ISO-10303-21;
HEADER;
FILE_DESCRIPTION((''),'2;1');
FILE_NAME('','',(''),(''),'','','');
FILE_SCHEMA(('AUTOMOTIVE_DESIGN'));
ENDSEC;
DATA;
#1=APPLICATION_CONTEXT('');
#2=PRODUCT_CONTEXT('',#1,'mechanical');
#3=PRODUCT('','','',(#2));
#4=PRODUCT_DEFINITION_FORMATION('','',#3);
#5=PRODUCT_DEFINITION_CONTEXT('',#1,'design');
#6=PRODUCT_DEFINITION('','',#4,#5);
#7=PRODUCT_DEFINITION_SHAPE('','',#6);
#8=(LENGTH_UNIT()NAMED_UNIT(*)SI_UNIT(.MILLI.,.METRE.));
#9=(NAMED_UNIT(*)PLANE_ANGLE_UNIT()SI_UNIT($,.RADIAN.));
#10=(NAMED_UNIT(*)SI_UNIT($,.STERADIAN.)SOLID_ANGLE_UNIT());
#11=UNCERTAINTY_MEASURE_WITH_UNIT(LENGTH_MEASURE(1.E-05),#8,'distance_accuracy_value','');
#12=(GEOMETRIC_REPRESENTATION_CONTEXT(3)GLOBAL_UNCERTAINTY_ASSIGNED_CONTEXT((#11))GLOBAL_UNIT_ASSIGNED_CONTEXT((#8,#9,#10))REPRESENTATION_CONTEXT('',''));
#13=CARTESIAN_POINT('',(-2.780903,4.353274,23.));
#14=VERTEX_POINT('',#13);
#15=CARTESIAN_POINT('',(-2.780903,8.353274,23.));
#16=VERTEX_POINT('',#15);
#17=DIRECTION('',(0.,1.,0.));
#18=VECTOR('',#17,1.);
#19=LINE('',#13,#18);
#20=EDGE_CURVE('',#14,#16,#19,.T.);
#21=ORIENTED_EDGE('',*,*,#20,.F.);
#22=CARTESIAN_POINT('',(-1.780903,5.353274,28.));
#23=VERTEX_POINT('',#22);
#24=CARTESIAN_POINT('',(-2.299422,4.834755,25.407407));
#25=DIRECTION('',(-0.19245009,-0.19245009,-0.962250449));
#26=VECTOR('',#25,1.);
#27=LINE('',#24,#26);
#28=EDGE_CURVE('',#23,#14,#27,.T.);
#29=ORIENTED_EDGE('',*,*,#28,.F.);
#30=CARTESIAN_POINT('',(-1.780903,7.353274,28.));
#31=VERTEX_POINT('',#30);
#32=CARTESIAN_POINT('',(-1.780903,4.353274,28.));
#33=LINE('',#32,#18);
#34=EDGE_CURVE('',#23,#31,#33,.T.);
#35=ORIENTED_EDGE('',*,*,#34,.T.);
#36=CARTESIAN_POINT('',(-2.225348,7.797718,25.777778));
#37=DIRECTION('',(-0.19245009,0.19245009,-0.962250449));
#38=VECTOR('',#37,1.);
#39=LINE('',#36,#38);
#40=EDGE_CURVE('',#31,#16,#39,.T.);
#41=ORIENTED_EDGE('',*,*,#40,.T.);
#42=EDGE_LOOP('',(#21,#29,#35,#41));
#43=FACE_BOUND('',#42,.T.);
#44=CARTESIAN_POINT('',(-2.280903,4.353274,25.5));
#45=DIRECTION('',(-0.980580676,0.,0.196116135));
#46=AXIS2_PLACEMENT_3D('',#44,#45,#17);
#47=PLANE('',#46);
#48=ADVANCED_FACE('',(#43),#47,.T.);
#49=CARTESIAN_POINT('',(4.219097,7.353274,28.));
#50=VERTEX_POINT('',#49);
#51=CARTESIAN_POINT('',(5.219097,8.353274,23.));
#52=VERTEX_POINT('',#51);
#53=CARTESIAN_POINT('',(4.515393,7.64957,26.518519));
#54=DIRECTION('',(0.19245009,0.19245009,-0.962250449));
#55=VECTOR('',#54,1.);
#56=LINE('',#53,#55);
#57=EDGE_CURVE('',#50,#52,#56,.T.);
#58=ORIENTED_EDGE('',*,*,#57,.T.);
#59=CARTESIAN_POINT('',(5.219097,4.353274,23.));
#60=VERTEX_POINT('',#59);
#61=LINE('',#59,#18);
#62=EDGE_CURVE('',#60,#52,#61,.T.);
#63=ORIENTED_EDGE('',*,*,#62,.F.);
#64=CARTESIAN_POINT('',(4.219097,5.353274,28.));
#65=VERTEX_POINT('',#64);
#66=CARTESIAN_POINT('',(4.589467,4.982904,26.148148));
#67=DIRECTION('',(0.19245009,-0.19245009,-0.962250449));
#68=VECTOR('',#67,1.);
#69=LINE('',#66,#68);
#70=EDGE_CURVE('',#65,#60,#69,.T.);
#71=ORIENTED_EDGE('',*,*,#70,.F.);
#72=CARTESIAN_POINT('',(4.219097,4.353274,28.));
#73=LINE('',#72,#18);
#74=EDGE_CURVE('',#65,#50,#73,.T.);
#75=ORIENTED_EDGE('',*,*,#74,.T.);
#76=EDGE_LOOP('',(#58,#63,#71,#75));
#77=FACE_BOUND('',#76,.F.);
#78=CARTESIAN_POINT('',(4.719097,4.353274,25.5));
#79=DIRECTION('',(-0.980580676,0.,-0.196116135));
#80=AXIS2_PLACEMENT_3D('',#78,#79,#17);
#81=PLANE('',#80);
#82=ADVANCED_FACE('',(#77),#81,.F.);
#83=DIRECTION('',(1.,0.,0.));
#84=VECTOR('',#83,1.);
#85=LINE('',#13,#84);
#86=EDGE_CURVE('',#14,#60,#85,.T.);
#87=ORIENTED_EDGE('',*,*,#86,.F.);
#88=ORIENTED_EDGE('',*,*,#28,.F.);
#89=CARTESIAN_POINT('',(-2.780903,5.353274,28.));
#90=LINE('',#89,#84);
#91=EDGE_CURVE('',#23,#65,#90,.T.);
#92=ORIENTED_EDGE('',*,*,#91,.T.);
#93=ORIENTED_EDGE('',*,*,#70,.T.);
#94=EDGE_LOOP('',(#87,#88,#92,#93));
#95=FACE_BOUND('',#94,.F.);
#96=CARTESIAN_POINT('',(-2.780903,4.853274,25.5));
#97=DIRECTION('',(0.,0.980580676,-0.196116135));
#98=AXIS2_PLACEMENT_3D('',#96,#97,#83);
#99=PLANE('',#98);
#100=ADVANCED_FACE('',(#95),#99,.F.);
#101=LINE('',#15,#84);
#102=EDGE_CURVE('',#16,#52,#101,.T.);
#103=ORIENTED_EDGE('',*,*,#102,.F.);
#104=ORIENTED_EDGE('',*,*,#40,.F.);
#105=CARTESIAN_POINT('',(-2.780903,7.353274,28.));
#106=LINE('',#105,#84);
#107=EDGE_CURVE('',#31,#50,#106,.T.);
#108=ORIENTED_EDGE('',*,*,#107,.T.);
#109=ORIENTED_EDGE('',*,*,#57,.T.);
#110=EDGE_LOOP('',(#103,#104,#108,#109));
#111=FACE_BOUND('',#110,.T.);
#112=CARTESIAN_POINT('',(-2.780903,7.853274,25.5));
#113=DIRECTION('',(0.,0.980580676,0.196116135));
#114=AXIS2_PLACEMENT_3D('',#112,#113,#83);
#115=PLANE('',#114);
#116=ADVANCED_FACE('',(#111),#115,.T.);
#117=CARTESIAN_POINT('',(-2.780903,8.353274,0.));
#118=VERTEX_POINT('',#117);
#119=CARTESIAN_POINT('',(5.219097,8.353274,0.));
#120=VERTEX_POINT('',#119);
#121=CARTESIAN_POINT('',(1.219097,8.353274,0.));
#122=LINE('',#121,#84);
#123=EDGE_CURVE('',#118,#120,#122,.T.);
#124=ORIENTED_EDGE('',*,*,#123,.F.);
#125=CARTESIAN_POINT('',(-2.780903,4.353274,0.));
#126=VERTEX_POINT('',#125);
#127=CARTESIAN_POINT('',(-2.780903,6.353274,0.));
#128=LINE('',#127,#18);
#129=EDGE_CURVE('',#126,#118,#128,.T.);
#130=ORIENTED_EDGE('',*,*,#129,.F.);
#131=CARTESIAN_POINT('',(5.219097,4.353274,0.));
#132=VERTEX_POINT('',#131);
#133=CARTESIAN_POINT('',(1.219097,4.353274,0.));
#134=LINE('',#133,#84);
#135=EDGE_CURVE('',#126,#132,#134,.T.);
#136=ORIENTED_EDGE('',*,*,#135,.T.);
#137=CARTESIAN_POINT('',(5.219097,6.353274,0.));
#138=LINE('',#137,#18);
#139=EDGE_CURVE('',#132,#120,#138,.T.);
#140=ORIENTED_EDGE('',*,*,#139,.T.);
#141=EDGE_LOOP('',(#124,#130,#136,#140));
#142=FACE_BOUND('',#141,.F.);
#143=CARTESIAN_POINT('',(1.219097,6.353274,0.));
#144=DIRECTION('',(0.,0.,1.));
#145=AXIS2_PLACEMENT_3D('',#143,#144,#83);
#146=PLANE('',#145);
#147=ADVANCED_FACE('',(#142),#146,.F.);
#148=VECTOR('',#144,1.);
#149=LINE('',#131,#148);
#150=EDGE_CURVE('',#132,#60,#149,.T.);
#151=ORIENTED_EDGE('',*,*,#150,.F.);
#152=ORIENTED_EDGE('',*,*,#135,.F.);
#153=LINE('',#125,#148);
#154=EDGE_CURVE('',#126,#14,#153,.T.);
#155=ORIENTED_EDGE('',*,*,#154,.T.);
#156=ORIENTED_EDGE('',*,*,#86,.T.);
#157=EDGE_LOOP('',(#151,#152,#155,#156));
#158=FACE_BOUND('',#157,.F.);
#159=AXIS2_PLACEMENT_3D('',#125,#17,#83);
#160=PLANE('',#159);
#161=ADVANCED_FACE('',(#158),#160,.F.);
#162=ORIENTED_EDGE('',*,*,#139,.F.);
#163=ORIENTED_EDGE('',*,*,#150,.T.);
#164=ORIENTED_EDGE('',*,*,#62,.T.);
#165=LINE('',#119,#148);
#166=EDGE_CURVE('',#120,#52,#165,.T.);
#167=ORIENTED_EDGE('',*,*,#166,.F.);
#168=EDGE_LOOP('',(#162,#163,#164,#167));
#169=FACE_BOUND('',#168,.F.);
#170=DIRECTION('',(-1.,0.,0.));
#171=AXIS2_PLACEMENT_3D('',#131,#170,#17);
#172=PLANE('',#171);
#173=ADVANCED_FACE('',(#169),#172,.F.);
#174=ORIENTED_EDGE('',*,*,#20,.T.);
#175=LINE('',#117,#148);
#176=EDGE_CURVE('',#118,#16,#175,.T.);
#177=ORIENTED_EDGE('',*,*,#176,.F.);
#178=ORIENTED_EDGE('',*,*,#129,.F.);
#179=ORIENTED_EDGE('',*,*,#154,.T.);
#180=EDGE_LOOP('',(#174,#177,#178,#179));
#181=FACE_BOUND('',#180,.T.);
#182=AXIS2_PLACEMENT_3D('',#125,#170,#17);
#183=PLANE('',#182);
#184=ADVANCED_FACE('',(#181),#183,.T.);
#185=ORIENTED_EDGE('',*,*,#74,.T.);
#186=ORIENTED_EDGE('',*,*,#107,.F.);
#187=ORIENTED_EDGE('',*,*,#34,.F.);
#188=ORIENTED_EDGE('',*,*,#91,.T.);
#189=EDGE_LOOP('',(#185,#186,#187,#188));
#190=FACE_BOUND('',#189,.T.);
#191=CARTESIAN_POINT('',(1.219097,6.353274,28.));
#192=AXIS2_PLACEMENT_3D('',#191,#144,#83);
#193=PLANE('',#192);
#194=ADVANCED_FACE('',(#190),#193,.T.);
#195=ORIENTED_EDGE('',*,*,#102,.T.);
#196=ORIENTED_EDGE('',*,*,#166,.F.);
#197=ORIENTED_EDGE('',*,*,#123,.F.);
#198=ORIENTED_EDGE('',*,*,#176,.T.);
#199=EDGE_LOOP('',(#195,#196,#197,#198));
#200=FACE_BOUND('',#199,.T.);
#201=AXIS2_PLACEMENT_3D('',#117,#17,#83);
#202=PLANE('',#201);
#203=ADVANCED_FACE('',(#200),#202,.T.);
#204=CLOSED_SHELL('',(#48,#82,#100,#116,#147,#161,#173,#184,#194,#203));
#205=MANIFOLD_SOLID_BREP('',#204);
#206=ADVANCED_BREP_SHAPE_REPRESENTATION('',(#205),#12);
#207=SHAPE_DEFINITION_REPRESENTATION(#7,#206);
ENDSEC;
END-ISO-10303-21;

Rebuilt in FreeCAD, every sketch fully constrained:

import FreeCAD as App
import Part
import Sketcher

V = App.Vector


def edges_at(feature, points):
    """Names of the edges that pass closest to the given points."""
    edges = feature.Shape.Edges
    near = lambda p: min(range(len(edges)), key=lambda i: edges[i].distToShape(Part.Vertex(*p))[0])
    return sorted({f"Edge{near(p) + 1}" for p in points})


def add_polygon(sketch, points):
    """Adds a closed chain of lines whose ends are joined by coincident constraints."""
    first, n = sketch.GeometryCount, len(points)
    for a, b in zip(points, points[1:] + points[:1]):
        sketch.addGeometry(Part.LineSegment(App.Vector(*a, 0), App.Vector(*b, 0)), False)
    for i in range(n):
        sketch.addConstraint(Sketcher.Constraint("Coincident", first + i, 2, first + (i + 1) % n, 1))

doc = App.newDocument("Part")
body = doc.addObject("PartDesign::Body", "Body")

# Sketch on XY plane
sketch1 = body.newObject("Sketcher::SketchObject", "Sketch")
sketch1.AttachmentSupport = (doc.getObject("XY_Plane"), [""])
sketch1.MapMode = "FlatFace"
add_polygon(sketch1, [(-2.8, 8.4), (-2.8, 4.4), (5.2, 4.4), (5.2, 8.4)])  # lines 0-3
sketch1.addConstraint(Sketcher.Constraint("Vertical", 0))
sketch1.addConstraint(Sketcher.Constraint("Horizontal", 1))
sketch1.addConstraint(Sketcher.Constraint("Vertical", 2))
sketch1.addConstraint(Sketcher.Constraint("Horizontal", 3))
sketch1.addConstraint(Sketcher.Constraint("DistanceX", 1, 1, 1, 2, 8.0))
sketch1.addConstraint(Sketcher.Constraint("DistanceY", 0, 2, 0, 1, 4.0))
sketch1.addConstraint(Sketcher.Constraint("DistanceX", 0, 2, -1, 1, 2.780903))
sketch1.addConstraint(Sketcher.Constraint("DistanceY", -1, 1, 0, 2, 4.353274))
pad1 = body.newObject("PartDesign::Pad", "Pad")
pad1.Profile = sketch1
pad1.Length = 28
doc.recompute()

chamfer = body.newObject("PartDesign::Chamfer", "Chamfer")
chamfer.Base = (pad1, edges_at(pad1, [
    (1.219, 4.353, 28),
    (1.219, 8.353, 28),
    (5.219, 6.353, 28),
    (-2.781, 6.353, 28),
]))
chamfer.ChamferType = "Two distances"
chamfer.Size = 1
chamfer.Size2 = 5
chamfer.FlipDirection = True

doc.recompute()
